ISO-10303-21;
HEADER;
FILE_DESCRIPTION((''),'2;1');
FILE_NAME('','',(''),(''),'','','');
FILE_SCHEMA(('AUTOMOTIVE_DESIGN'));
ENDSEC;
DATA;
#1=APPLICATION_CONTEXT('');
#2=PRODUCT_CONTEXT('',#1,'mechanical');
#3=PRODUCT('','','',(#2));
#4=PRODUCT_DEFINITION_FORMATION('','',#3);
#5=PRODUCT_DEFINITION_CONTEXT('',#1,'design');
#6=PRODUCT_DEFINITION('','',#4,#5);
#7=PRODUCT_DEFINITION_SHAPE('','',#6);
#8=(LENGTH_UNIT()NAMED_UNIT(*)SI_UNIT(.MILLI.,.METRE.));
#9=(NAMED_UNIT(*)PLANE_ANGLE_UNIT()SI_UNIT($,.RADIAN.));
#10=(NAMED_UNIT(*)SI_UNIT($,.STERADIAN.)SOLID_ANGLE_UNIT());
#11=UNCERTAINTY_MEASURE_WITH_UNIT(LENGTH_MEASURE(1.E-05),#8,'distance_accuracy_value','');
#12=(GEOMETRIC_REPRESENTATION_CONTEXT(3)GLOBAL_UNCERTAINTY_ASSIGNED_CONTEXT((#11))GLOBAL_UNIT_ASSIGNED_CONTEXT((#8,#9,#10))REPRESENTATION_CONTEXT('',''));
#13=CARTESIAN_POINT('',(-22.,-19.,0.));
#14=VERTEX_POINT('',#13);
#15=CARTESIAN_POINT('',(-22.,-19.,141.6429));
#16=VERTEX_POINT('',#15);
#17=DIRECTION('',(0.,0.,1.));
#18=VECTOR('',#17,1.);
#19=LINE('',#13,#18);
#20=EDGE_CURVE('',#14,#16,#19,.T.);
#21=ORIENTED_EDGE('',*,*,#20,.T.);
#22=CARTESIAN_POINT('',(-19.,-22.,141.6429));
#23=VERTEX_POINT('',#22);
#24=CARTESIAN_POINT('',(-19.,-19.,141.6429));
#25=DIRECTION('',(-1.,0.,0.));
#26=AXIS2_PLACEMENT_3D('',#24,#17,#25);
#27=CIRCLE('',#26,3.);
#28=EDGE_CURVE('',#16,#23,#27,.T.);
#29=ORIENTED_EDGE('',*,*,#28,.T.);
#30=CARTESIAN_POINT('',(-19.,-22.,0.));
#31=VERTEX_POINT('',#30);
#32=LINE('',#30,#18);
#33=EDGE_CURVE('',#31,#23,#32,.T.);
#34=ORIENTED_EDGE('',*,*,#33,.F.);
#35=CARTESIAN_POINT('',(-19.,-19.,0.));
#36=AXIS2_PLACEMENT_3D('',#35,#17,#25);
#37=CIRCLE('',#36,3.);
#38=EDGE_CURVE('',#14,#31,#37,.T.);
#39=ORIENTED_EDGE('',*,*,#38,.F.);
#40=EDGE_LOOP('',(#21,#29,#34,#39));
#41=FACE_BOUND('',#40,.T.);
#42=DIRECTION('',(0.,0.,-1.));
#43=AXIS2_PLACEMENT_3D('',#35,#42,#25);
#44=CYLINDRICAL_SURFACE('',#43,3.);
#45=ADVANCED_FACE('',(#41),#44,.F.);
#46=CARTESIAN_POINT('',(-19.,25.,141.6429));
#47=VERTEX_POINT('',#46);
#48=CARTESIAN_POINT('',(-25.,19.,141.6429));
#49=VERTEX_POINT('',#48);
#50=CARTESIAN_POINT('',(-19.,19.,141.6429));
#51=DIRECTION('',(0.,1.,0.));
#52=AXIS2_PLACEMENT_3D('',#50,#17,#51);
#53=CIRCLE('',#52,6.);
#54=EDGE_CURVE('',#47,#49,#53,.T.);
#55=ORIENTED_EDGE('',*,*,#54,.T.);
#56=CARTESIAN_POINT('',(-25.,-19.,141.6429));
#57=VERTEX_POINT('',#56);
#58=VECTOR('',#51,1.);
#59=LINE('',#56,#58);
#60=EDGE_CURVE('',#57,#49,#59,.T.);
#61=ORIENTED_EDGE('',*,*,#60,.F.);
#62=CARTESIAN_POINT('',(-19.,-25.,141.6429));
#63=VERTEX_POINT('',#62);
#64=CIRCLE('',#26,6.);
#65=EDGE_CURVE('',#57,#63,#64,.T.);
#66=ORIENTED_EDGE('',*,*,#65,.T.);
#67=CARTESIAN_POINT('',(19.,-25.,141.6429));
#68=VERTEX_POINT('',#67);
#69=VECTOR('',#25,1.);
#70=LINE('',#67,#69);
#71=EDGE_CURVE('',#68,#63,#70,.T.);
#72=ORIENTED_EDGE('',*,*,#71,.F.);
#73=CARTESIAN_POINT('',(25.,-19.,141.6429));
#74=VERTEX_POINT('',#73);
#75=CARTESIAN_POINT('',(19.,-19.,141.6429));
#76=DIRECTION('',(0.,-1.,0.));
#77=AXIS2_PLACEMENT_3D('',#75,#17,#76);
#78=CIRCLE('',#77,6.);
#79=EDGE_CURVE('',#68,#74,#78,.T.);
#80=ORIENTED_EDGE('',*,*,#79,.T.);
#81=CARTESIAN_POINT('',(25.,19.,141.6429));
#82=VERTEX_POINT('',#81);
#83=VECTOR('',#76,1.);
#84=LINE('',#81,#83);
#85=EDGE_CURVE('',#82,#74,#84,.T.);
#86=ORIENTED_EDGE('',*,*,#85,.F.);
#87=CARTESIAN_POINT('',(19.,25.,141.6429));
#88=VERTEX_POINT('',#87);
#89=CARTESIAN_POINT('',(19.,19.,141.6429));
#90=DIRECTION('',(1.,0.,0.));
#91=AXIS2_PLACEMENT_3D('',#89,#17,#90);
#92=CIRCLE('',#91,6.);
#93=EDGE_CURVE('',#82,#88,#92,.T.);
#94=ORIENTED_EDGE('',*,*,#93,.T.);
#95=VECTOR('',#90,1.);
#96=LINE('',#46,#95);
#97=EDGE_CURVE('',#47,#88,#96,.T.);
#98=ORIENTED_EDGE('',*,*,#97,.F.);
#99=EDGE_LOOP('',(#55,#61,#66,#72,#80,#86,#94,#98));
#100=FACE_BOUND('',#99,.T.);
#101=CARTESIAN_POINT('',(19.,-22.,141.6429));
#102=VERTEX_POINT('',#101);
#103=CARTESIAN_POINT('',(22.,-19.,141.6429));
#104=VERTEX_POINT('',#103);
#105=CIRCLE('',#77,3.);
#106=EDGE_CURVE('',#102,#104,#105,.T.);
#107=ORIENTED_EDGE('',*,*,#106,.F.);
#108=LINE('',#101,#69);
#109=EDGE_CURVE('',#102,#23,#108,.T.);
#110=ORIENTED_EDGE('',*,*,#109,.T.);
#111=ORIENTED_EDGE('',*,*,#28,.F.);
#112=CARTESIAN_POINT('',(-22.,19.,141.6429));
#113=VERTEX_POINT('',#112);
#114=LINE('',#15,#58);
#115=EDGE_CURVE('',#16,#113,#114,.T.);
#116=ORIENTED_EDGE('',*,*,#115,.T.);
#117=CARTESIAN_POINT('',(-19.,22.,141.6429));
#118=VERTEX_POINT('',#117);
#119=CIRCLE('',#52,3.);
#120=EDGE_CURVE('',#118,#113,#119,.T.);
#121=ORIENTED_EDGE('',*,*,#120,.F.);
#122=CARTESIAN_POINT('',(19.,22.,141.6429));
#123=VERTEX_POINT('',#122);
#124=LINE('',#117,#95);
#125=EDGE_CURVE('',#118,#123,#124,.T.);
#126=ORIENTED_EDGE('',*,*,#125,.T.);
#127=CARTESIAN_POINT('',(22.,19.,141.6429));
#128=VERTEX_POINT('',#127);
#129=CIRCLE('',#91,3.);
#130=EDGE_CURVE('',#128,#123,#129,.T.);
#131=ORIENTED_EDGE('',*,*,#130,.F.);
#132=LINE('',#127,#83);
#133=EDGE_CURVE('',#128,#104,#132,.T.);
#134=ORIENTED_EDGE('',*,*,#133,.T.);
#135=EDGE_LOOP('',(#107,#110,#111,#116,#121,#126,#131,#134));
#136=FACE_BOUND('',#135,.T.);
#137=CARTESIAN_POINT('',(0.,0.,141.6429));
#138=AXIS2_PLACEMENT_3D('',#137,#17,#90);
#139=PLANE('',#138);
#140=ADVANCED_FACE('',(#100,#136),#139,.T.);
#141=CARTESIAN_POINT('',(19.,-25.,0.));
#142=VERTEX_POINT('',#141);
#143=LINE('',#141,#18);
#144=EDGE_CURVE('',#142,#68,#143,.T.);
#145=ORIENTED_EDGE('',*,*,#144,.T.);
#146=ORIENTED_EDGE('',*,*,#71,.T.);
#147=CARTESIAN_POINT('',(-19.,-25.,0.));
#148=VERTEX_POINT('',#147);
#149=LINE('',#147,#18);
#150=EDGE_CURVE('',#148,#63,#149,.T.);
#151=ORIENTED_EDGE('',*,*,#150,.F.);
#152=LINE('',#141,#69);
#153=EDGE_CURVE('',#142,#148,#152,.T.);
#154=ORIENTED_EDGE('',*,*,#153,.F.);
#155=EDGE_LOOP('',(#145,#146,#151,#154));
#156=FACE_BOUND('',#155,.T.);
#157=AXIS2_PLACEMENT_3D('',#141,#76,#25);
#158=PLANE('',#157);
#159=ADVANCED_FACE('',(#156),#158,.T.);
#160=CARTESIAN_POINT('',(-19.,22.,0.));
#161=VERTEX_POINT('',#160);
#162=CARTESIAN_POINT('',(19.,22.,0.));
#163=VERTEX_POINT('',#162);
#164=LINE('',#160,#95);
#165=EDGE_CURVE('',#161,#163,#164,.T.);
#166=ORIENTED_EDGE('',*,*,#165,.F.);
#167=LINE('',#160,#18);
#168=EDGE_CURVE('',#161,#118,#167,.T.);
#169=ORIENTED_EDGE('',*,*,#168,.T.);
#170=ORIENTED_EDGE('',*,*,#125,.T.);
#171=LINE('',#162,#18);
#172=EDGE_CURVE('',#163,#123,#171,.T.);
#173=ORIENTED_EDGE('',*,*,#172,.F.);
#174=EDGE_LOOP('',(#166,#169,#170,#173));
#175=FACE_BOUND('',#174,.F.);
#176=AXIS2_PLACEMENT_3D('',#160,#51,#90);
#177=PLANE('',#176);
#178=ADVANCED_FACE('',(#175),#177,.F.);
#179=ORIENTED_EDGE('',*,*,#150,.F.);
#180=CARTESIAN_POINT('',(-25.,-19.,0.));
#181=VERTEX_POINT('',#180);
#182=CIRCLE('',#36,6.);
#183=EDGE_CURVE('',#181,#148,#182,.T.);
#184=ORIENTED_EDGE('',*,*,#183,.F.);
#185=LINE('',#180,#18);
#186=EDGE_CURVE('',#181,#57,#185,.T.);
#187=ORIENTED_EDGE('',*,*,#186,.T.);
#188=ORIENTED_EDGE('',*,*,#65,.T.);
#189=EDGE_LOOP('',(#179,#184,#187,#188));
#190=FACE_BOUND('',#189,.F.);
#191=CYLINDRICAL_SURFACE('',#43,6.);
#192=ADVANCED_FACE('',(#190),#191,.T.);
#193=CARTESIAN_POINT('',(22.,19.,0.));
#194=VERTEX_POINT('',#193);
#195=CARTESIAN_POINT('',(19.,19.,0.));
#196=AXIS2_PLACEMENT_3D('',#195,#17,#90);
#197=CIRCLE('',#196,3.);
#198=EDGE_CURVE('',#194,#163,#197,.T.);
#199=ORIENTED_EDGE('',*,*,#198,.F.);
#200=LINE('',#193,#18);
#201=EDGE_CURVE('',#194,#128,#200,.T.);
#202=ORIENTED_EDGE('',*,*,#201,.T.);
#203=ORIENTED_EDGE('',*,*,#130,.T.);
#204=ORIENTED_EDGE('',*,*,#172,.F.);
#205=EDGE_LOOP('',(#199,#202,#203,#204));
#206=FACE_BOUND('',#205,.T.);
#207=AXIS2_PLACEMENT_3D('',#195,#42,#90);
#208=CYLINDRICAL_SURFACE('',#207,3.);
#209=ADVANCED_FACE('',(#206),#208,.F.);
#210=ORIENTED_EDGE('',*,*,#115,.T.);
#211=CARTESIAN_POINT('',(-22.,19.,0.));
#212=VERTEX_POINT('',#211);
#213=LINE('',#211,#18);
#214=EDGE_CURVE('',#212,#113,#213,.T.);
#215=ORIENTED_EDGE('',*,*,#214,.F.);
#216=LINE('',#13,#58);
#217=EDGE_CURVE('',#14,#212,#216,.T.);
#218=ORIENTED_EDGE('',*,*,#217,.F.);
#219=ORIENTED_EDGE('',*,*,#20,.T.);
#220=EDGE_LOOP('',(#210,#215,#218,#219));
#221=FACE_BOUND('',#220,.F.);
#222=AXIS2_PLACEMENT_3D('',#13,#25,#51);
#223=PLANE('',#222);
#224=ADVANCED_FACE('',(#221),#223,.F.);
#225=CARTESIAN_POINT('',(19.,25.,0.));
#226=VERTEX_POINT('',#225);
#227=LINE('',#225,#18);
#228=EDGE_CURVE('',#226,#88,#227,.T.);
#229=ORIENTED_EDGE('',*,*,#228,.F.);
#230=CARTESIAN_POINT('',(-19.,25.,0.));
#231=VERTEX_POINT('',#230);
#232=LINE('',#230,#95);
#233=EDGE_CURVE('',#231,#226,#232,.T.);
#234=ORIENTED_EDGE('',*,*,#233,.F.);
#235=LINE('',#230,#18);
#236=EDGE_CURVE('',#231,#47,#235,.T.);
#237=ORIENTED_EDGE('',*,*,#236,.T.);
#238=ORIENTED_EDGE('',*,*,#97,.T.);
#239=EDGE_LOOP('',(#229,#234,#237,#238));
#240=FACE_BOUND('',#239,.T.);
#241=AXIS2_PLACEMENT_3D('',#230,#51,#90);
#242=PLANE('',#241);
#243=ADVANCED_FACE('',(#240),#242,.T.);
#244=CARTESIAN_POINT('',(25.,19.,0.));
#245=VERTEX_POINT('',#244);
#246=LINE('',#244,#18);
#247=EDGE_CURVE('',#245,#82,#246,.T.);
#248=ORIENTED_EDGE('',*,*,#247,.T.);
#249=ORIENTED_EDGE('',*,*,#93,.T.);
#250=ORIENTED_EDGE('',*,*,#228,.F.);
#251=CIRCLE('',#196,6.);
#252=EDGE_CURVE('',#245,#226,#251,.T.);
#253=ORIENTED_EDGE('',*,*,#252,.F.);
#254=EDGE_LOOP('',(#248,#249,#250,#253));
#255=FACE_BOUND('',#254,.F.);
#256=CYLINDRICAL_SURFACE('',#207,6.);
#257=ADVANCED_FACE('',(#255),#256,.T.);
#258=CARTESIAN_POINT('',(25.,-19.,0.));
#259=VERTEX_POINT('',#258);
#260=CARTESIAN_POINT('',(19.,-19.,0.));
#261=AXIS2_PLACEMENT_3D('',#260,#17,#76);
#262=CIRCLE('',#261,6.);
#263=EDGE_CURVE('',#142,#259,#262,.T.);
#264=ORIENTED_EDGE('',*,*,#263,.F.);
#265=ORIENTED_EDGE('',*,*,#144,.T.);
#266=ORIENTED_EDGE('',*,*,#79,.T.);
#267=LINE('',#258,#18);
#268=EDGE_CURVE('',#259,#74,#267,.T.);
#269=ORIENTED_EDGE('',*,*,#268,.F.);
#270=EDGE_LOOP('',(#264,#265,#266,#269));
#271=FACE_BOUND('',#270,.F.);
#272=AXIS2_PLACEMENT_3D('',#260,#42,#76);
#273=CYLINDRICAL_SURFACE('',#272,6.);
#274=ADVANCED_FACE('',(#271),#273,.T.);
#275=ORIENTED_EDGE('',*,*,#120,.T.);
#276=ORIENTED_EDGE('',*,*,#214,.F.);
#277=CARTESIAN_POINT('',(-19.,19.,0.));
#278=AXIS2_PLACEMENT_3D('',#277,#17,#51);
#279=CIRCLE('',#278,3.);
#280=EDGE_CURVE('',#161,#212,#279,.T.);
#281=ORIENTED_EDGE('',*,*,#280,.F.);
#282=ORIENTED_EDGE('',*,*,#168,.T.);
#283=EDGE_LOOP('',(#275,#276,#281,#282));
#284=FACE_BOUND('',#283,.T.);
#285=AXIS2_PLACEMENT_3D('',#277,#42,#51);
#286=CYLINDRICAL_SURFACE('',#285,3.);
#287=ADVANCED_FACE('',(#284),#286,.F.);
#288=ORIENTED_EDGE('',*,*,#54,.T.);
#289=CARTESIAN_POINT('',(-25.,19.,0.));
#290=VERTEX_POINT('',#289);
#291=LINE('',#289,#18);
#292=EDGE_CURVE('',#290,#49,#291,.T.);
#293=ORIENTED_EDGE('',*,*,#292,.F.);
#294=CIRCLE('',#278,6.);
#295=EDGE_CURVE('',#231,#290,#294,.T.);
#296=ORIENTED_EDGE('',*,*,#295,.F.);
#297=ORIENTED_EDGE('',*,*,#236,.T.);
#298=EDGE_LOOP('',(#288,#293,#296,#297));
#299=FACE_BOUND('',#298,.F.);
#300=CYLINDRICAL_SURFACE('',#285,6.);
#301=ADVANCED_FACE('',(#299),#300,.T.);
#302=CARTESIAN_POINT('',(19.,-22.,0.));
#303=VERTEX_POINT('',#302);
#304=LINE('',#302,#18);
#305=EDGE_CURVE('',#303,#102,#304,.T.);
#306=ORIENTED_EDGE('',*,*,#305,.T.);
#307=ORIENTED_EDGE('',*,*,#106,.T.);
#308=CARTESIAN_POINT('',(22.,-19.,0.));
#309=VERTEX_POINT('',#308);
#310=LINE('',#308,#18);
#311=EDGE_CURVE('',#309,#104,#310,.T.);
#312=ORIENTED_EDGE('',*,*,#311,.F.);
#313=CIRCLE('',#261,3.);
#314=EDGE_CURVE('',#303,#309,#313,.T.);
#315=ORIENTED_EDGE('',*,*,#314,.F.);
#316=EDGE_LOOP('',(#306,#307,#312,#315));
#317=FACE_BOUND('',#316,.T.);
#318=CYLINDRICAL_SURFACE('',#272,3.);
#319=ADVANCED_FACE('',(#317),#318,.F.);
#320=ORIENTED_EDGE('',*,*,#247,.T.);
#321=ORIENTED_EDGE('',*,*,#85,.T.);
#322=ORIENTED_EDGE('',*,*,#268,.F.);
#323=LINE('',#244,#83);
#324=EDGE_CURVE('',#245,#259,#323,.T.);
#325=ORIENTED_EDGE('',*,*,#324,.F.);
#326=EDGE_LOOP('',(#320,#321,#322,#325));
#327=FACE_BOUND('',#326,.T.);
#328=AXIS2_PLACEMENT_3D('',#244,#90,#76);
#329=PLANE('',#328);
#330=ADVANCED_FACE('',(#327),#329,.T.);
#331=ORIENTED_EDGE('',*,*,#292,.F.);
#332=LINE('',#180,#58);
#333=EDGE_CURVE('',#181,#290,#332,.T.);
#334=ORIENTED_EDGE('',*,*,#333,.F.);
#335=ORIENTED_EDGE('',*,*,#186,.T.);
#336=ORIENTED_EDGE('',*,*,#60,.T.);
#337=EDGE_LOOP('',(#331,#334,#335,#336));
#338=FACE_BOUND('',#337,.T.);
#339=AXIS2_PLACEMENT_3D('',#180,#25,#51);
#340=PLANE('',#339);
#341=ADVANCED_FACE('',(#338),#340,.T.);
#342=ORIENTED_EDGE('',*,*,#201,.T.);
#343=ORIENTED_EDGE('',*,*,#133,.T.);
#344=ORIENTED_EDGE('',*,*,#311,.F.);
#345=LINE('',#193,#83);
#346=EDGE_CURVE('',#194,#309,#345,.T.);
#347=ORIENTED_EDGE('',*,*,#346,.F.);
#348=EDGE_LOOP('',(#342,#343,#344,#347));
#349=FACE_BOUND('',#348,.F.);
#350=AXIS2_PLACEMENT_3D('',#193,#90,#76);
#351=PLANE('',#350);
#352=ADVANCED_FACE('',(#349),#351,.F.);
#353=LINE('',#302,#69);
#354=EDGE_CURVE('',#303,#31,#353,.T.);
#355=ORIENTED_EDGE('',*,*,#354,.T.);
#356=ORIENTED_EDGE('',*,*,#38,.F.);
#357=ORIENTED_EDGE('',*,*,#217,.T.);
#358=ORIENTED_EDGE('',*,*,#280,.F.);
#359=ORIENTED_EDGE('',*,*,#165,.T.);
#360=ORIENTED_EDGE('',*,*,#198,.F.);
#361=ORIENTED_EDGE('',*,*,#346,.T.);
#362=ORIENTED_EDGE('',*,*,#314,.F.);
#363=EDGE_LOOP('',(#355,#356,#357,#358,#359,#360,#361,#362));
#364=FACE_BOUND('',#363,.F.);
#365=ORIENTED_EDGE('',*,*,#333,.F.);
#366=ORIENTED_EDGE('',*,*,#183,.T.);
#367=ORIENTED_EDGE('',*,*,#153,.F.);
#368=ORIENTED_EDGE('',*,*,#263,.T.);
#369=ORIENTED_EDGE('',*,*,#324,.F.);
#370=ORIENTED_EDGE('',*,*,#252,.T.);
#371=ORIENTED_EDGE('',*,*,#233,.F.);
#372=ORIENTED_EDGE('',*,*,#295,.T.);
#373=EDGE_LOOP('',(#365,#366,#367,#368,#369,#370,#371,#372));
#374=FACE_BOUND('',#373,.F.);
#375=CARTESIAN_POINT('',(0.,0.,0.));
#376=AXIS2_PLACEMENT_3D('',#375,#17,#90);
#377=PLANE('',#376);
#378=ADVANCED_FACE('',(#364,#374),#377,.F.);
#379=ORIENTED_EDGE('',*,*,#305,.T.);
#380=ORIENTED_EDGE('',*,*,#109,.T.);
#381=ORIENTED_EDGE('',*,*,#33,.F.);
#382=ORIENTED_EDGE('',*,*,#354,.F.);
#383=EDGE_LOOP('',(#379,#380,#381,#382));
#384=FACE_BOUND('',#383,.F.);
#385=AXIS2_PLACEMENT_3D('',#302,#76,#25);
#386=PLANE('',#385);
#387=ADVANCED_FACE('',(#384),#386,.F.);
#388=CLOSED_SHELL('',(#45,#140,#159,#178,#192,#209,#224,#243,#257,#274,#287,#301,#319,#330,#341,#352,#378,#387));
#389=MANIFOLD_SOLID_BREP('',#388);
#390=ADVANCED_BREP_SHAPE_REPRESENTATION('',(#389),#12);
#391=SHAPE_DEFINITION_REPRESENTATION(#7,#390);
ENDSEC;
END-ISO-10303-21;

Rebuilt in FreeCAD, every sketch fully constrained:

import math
import FreeCAD as App
import Part
import Sketcher

V = App.Vector
Q = App.Units.Quantity

doc = App.newDocument("Part")
body = doc.addObject("PartDesign::Body", "Body")

sketch1 = body.newObject("Sketcher::SketchObject", "Sketch")
sketch1.AttachmentSupport = (doc.getObject("XY_Plane"), [""])
sketch1.MapMode = "FlatFace"
sketch1.addGeometry([
    Part.LineSegment(V(-25, 19, 0), V(-25, -19, 0)),
    Part.ArcOfCircle(Part.Circle(V(-19, -19, 0), V(0, 0, 1), 6), math.radians(180), math.radians(270)),
    Part.LineSegment(V(-19, -25, 0), V(19, -25, 0)),
    Part.ArcOfCircle(Part.Circle(V(19, -19, 0), V(0, 0, 1), 6), math.radians(-90), math.radians(0)),
    Part.LineSegment(V(25, -19, 0), V(25, 19, 0)),
    Part.ArcOfCircle(Part.Circle(V(19, 19, 0), V(0, 0, 1), 6), math.radians(0), math.radians(90)),
    Part.LineSegment(V(19, 25, 0), V(-19, 25, 0)),
    Part.ArcOfCircle(Part.Circle(V(-19, 19, 0), V(0, 0, 1), 6), math.radians(90), math.radians(180)),
    Part.ArcOfCircle(Part.Circle(V(-19, 19, 0), V(0, 0, 1), 3), math.radians(90), math.radians(180)),
    Part.LineSegment(V(-19, 22, 0), V(19, 22, 0)),
    Part.ArcOfCircle(Part.Circle(V(19, 19, 0), V(0, 0, 1), 3), math.radians(0), math.radians(90)),
    Part.LineSegment(V(22, 19, 0), V(22, -19, 0)),
    Part.ArcOfCircle(Part.Circle(V(19, -19, 0), V(0, 0, 1), 3), math.radians(-90), math.radians(0)),
    Part.LineSegment(V(19, -22, 0), V(-19, -22, 0)),
    Part.ArcOfCircle(Part.Circle(V(-19, -19, 0), V(0, 0, 1), 3), math.radians(180), math.radians(270)),
    Part.LineSegment(V(-22, -19, 0), V(-22, 19, 0)),
], False)
sketch1.addConstraint([
    Sketcher.Constraint("Tangent", 0, 2, 1, 1),
    Sketcher.Constraint("Tangent", 1, 2, 2, 1),
    Sketcher.Constraint("Tangent", 2, 2, 3, 1),
    Sketcher.Constraint("Tangent", 3, 2, 4, 1),
    Sketcher.Constraint("Tangent", 4, 2, 5, 1),
    Sketcher.Constraint("Tangent", 5, 2, 6, 1),
    Sketcher.Constraint("Tangent", 6, 2, 7, 1),
    Sketcher.Constraint("Tangent", 7, 2, 0, 1),
    Sketcher.Constraint("Tangent", 8, 1, 9, 1),
    Sketcher.Constraint("Tangent", 9, 2, 10, 2),
    Sketcher.Constraint("Tangent", 10, 1, 11, 1),
    Sketcher.Constraint("Tangent", 11, 2, 12, 2),
    Sketcher.Constraint("Tangent", 12, 1, 13, 1),
    Sketcher.Constraint("Tangent", 13, 2, 14, 2),
    Sketcher.Constraint("Tangent", 14, 1, 15, 1),
    Sketcher.Constraint("Tangent", 15, 2, 8, 2),
    Sketcher.Constraint("Vertical", 0),
    Sketcher.Constraint("Horizontal", 2),
    Sketcher.Constraint("Vertical", 4),
    Sketcher.Constraint("Horizontal", 6),
    Sketcher.Constraint("Horizontal", 9),
    Sketcher.Constraint("Vertical", 11),
    Sketcher.Constraint("Horizontal", 13),
    Sketcher.Constraint("Vertical", 15),
    Sketcher.Constraint("Coincident", 8, 3, 7, 3),
    Sketcher.Constraint("Coincident", 10, 3, 5, 3),
    Sketcher.Constraint("Coincident", 12, 3, 3, 3),
    Sketcher.Constraint("Equal", 1, 3),
    Sketcher.Constraint("Equal", 3, 5),
    Sketcher.Constraint("Equal", 5, 7),
    Sketcher.Constraint("Equal", 12, 14),
    Sketcher.Constraint("Symmetric", 1, 3, 5, 3, -1, 1),
    Sketcher.Constraint("Equal", 13, 0),
    Sketcher.Constraint("Radius", 1, Q("6 mm")),
    Sketcher.Constraint("Radius", 8, Q("3 mm")),
    Sketcher.Constraint("DistanceX", 0, 2, -1, 1, Q("25 mm")),
])
pad1 = body.newObject("PartDesign::Pad", "Pad")
pad1.Profile = sketch1
pad1.Length = 141.6429

doc.recompute()
